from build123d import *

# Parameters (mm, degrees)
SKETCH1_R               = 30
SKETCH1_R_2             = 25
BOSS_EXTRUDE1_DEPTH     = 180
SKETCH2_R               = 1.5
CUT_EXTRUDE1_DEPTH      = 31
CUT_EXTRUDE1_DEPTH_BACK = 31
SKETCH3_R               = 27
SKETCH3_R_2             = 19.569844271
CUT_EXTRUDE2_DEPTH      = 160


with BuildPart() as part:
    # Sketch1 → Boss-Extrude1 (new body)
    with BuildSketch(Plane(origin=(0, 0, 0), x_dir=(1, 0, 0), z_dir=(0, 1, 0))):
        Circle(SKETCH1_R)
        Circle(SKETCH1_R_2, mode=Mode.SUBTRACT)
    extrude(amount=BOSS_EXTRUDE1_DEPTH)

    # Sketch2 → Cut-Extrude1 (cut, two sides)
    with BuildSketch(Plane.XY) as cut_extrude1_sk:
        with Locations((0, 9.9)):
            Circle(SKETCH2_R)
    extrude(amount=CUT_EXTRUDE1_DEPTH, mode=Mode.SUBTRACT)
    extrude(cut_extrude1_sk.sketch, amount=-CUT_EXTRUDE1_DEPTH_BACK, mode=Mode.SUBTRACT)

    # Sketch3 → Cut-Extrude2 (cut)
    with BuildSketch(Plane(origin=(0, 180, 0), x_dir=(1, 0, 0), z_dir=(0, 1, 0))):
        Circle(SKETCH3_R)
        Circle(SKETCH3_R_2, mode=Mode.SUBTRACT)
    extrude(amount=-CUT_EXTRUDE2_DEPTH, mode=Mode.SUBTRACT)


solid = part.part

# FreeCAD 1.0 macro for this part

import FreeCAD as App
import Part
import Sketcher
from FreeCAD import Vector
Q = App.Units.Quantity

doc = App.newDocument("Part")
params = doc.addObject("Spreadsheet::Sheet", "Params")
for row, (alias, value) in enumerate([
    ("sketch1_diameter", "60 mm"),
    ("sketch1_diameter2", "50 mm"),
    ("pad1_length", "180 mm"),
    ("sketch2_diameter", "3 mm"),
    ("sketch3_diameter", "54 mm"),
    ("pocket2_length", "160 mm"),
], start=1):
    params.set(f"A{row}", alias)
    params.set(f"B{row}", "=" + value)
    params.setAlias(f"B{row}", alias)

body = doc.addObject("PartDesign::Body", "Body")

# Sketch on XZ plane
sketch1 = body.newObject("Sketcher::SketchObject", "Sketch")
sketch1.AttachmentSupport = (doc.getObject("XZ_Plane"), [""])
sketch1.MapMode = "FlatFace"
sketch1.addGeometry([
    Part.Circle(Vector(0, 0, 0), Vector(0, 0, 1), 30),
    Part.Circle(Vector(0, 0, 0), Vector(0, 0, 1), 25),
], False)
sketch1.addConstraint([
    Sketcher.Constraint("Coincident", 0, 3, -1, 1),
    Sketcher.Constraint("Coincident", 1, 3, -1, 1),
    Sketcher.Constraint("Diameter", 0, Q("60 mm")),
    Sketcher.Constraint("Diameter", 1, Q("50 mm")),
])
sketch1.setExpression("Constraints[2]", "Params.sketch1_diameter")
sketch1.setExpression("Constraints[3]", "Params.sketch1_diameter2")
pad1 = body.newObject("PartDesign::Pad", "Pad")
pad1.Profile = sketch1
pad1.setExpression("Length", "Params.pad1_length")
pad1.Reversed = True

# Sketch on XY plane
sketch2 = body.newObject("Sketcher::SketchObject", "Sketch001")
sketch2.AttachmentSupport = (doc.getObject("XY_Plane"), [""])
sketch2.MapMode = "FlatFace"
sketch2.addGeometry(Part.Circle(Vector(0, 9.9, 0), Vector(0, 0, 1), 1.5), False)
sketch2.addConstraint([
    Sketcher.Constraint("PointOnObject", 0, 3, -2),
    Sketcher.Constraint("Diameter", 0, Q("3 mm")),
    Sketcher.Constraint("DistanceY", -1, 1, 0, 3, Q("9.9 mm")),
])
sketch2.setExpression("Constraints[1]", "Params.sketch2_diameter")
pocket1 = body.newObject("PartDesign::Pocket", "Pocket")
pocket1.Profile = sketch2
pocket1.Type = "ThroughAll"
pocket1.Midplane = True

# Sketch on XZ plane
sketch3 = body.newObject("Sketcher::SketchObject", "Sketch002")
sketch3.AttachmentSupport = (doc.getObject("XZ_Plane"), [""])
sketch3.MapMode = "FlatFace"
sketch3.AttachmentOffset = App.Placement(Vector(0, 0, -180), App.Rotation())
sketch3.addGeometry([
    Part.Circle(Vector(0, 0, 0), Vector(0, 0, 1), 27),
    Part.Circle(Vector(0, 0, 0), Vector(0, 0, 1), 20),
], False)
sketch3.addConstraint([
    Sketcher.Constraint("Coincident", 0, 3, -1, 1),
    Sketcher.Constraint("Coincident", 1, 3, -1, 1),
    Sketcher.Constraint("Diameter", 0, Q("54 mm")),
    Sketcher.Constraint("Diameter", 1, Q("39.139689 mm")),
])
sketch3.setExpression("Constraints[2]", "Params.sketch3_diameter")
pocket2 = body.newObject("PartDesign::Pocket", "Pocket001")
pocket2.Profile = sketch3
pocket2.setExpression("Length", "Params.pocket2_length")
pocket2.Reversed = True

doc.recompute()
